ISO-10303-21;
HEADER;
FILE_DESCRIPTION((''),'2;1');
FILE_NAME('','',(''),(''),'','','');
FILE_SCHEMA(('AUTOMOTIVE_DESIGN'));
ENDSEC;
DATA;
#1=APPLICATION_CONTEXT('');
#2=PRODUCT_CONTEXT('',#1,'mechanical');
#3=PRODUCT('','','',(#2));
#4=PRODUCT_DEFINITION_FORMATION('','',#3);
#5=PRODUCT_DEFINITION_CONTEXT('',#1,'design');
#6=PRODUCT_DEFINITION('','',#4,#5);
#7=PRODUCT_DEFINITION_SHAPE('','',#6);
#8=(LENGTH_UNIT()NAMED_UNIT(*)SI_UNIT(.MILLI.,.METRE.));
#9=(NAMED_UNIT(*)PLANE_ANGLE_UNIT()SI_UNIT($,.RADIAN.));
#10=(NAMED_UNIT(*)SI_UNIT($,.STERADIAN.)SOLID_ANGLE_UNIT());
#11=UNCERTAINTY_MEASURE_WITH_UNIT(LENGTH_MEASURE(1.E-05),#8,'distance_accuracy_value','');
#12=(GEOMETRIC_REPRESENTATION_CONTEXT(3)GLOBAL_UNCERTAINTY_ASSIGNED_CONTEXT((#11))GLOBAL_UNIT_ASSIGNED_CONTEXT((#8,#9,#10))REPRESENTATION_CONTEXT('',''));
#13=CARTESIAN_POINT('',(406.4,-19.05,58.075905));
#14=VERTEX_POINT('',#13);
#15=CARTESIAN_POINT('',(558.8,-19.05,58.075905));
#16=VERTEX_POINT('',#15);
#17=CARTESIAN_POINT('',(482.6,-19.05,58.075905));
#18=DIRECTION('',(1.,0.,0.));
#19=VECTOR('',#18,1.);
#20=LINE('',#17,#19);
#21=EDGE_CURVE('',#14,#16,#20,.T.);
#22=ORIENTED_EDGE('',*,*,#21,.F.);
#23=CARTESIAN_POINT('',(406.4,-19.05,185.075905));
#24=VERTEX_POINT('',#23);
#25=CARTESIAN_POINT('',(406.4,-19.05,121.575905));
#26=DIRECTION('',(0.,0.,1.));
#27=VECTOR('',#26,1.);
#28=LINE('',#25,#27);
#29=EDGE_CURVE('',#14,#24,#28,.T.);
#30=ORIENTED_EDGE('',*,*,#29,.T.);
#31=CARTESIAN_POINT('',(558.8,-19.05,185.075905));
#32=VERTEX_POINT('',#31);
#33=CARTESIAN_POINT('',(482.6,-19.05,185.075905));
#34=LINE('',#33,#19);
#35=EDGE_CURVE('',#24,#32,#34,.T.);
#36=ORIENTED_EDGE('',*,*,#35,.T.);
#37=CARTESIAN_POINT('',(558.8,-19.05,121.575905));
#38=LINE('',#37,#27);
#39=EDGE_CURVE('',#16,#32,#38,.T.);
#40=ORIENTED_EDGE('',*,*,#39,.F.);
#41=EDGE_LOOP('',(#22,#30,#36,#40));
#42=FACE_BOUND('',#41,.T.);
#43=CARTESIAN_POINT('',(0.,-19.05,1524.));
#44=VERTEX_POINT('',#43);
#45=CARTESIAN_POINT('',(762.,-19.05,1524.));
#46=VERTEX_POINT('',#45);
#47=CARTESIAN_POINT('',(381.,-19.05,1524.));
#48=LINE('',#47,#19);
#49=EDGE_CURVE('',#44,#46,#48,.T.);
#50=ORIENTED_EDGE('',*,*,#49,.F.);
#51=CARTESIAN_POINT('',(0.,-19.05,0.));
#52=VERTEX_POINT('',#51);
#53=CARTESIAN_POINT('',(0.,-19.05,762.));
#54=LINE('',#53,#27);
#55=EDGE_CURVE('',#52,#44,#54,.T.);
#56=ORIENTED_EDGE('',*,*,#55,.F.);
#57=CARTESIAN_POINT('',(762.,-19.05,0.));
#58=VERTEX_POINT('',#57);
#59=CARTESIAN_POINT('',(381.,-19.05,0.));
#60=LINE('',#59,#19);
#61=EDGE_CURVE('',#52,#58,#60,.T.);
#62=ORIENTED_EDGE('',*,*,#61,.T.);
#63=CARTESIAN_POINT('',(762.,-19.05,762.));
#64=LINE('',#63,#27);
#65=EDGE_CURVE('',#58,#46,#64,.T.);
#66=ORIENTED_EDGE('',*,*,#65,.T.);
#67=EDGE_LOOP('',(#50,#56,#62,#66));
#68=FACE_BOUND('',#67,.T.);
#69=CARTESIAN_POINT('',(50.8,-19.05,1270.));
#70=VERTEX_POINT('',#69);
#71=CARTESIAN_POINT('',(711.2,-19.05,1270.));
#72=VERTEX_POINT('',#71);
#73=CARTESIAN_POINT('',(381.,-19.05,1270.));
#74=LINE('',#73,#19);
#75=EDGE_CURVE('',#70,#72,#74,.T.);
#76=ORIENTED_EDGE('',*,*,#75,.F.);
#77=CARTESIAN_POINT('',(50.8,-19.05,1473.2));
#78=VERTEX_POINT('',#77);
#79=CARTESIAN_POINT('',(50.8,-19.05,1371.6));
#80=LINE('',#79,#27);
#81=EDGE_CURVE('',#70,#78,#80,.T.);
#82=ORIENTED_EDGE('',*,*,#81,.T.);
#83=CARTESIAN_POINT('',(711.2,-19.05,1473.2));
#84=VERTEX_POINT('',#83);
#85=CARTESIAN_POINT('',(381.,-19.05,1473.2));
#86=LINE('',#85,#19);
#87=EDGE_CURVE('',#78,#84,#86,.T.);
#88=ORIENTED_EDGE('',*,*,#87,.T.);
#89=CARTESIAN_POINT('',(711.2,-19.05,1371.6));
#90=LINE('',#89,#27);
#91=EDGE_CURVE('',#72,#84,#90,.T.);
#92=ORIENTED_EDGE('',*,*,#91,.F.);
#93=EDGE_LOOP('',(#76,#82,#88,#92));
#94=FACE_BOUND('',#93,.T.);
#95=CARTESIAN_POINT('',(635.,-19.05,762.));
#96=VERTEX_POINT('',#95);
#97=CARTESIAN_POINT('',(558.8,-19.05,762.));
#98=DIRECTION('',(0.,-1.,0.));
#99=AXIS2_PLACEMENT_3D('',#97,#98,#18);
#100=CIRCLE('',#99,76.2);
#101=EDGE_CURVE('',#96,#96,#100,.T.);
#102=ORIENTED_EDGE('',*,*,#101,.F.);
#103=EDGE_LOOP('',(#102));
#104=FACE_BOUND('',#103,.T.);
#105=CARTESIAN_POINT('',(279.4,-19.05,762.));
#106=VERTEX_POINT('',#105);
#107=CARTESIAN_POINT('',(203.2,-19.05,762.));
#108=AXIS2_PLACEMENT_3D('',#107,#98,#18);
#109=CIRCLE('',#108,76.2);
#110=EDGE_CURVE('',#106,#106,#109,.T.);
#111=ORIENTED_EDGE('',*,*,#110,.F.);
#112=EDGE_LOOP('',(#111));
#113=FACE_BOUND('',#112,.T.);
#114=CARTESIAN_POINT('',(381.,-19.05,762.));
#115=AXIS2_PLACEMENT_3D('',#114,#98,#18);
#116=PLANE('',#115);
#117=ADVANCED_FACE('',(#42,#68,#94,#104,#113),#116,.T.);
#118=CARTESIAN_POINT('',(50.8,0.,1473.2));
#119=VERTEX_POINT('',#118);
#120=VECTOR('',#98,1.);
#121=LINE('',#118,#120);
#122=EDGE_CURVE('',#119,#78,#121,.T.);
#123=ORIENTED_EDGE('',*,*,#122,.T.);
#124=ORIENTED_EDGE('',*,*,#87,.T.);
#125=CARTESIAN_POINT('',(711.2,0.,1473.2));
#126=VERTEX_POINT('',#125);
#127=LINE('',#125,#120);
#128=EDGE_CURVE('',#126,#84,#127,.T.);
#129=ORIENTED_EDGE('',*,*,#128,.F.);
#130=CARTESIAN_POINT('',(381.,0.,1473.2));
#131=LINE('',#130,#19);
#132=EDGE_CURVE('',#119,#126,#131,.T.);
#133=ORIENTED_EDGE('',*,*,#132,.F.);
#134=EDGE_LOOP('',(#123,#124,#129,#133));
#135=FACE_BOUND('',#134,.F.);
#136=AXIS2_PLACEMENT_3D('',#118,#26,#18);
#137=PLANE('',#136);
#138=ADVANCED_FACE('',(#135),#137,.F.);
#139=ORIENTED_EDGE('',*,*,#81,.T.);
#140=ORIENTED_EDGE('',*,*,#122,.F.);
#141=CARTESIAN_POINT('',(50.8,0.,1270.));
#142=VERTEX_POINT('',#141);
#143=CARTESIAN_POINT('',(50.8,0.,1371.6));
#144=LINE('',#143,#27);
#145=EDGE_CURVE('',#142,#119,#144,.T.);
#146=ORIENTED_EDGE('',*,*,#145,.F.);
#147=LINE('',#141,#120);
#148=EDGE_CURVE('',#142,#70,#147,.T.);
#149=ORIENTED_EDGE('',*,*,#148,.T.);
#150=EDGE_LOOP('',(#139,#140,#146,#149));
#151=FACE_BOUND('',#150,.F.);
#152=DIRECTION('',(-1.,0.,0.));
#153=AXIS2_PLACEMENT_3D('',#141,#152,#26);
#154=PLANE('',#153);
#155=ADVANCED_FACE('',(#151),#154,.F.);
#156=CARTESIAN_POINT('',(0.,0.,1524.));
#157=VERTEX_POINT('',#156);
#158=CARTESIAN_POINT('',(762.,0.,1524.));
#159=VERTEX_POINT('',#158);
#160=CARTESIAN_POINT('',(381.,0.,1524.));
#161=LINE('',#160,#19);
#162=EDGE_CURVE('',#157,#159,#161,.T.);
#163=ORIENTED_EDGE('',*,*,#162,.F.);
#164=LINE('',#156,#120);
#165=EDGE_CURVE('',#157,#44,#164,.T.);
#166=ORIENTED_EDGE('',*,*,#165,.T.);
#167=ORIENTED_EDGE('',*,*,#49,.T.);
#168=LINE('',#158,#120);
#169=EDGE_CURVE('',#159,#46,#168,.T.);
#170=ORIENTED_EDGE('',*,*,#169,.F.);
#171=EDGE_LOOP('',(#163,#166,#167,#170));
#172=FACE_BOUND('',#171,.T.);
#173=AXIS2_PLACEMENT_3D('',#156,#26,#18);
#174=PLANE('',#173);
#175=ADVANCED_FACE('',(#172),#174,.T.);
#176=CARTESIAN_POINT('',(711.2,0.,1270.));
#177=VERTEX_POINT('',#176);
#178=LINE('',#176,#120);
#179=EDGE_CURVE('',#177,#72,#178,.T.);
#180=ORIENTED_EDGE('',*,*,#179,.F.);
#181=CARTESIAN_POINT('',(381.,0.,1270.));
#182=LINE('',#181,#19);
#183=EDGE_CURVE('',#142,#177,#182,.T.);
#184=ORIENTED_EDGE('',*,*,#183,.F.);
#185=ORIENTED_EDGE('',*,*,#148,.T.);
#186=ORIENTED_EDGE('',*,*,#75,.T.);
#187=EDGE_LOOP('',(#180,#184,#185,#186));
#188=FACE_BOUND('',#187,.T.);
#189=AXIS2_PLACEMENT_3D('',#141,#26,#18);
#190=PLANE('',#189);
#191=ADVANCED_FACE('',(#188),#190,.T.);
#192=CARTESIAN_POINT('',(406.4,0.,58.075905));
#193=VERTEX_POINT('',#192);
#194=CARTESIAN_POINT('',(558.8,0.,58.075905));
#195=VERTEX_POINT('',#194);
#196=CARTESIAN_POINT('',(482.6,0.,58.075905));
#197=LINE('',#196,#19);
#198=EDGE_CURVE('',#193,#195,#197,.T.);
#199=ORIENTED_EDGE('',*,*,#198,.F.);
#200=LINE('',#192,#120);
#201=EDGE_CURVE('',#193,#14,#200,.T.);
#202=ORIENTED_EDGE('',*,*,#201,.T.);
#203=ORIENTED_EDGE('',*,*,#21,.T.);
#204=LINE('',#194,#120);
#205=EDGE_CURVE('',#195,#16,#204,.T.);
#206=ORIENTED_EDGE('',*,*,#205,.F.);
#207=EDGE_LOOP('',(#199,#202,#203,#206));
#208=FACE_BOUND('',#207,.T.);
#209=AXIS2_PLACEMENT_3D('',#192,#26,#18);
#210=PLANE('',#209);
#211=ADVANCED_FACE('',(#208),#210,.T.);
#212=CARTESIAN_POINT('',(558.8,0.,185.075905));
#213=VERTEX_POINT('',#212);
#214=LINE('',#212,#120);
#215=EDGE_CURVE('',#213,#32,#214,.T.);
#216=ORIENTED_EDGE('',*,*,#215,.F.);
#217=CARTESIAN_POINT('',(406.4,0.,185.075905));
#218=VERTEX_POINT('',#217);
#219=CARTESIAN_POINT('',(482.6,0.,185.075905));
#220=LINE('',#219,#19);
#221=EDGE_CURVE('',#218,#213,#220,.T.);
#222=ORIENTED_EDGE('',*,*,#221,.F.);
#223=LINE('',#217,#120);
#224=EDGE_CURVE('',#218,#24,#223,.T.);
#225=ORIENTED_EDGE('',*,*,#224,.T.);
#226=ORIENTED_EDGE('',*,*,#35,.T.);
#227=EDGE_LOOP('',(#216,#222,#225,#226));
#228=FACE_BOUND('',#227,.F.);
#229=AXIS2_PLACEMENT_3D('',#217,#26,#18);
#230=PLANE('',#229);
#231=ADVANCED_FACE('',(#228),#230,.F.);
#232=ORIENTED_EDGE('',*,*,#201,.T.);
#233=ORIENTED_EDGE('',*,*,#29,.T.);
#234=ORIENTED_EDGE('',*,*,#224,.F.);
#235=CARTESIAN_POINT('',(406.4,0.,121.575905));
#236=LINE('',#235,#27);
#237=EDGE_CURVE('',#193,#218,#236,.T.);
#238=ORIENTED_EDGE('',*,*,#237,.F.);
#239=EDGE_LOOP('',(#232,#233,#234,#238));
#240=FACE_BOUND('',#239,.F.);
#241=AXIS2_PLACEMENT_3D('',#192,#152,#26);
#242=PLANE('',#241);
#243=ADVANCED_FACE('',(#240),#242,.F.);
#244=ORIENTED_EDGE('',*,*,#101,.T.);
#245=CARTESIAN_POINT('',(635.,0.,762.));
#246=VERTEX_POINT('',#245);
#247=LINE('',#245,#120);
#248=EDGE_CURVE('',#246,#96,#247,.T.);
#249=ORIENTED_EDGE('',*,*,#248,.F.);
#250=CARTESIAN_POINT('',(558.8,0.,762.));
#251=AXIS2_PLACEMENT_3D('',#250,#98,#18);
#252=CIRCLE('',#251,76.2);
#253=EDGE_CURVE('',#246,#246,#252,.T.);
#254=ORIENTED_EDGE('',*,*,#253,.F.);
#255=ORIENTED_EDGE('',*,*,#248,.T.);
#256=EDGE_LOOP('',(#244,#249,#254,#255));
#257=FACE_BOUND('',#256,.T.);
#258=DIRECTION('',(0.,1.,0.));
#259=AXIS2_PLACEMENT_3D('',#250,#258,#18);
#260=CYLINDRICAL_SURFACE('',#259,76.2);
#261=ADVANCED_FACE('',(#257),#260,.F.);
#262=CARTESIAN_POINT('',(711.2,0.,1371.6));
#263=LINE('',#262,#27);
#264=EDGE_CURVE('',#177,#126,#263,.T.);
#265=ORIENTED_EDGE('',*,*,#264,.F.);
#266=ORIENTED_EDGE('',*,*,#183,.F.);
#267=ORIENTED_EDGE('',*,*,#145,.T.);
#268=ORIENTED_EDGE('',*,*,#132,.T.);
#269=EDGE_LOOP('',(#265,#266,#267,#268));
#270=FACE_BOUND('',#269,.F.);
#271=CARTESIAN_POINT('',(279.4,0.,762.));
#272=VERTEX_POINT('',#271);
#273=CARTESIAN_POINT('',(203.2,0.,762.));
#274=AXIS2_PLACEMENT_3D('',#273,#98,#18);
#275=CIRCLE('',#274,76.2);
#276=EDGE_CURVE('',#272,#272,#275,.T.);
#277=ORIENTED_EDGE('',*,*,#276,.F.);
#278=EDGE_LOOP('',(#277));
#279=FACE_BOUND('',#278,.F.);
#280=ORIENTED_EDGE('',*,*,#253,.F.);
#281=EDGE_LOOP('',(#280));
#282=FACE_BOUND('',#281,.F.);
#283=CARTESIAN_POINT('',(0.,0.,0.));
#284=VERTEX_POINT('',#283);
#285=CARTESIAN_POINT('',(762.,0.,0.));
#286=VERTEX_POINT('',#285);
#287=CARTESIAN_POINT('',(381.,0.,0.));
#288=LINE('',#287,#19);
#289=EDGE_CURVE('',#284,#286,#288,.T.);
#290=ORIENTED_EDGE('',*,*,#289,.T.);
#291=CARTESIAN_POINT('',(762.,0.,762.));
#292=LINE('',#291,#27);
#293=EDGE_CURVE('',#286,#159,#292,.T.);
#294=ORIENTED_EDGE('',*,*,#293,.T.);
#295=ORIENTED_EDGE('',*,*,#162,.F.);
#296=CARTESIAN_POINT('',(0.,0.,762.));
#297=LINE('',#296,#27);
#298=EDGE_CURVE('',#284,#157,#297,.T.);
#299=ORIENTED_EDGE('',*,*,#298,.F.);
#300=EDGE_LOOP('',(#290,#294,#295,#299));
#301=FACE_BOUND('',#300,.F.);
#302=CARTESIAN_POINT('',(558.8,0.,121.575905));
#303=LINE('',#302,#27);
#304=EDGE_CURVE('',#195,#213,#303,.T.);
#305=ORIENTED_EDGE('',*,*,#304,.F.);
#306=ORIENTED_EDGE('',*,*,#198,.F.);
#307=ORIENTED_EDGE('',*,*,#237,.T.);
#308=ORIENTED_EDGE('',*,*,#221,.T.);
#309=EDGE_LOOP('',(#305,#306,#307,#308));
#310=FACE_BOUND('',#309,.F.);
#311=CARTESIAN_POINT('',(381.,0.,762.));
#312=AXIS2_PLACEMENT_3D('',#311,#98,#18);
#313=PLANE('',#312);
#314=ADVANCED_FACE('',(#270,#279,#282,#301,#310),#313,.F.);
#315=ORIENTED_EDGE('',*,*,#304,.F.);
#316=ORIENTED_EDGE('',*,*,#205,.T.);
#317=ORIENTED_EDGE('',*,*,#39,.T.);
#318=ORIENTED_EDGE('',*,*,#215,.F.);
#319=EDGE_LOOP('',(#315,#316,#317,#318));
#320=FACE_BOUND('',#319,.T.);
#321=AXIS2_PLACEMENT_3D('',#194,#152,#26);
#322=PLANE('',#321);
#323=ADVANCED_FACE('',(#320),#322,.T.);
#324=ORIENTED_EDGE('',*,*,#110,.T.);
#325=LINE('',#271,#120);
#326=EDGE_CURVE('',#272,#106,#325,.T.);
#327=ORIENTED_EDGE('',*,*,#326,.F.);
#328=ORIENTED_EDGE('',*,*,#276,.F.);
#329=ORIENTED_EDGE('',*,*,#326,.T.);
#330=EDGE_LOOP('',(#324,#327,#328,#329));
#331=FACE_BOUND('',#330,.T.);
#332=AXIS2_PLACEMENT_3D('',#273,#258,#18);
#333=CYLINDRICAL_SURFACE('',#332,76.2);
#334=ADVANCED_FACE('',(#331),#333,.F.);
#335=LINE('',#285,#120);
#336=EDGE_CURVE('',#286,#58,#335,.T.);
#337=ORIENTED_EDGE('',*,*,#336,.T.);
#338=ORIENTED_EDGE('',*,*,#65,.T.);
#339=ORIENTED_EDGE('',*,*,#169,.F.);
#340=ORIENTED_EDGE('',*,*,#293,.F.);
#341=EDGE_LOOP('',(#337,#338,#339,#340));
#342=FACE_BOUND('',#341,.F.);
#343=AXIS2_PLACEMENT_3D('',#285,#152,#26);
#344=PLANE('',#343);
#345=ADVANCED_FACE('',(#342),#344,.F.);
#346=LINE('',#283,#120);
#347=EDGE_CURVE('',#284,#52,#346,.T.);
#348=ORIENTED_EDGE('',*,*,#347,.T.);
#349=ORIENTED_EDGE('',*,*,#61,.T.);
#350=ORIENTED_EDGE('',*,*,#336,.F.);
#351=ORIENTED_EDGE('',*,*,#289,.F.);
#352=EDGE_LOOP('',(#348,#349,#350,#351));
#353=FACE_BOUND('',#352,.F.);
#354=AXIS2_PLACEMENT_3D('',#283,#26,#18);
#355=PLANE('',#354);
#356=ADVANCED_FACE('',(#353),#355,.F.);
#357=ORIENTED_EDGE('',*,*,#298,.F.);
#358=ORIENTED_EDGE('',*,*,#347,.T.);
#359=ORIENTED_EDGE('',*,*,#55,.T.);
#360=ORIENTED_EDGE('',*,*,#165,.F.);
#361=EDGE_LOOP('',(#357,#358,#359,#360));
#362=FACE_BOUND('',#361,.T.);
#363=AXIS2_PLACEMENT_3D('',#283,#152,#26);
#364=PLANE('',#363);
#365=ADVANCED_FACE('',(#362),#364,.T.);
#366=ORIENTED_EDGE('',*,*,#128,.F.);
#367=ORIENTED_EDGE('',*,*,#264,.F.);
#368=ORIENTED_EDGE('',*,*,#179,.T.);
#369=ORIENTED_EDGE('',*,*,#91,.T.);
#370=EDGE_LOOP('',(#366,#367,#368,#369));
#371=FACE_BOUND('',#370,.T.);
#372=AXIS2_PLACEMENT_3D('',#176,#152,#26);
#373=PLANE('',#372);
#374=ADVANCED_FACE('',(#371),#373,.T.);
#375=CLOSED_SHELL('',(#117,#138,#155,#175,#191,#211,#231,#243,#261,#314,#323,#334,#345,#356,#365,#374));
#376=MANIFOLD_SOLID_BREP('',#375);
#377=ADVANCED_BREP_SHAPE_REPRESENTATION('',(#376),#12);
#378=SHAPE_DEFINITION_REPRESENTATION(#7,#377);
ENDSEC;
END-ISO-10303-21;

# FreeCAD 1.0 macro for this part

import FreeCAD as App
import Part
import Sketcher

V = App.Vector
Q = App.Units.Quantity


def add_polygon(sketch, points):
    """Adds a closed chain of lines whose ends are joined by coincident constraints."""
    first, n = sketch.GeometryCount, len(points)
    for a, b in zip(points, points[1:] + points[:1]):
        sketch.addGeometry(Part.LineSegment(App.Vector(*a, 0), App.Vector(*b, 0)), False)
    for i in range(n):
        sketch.addConstraint(Sketcher.Constraint("Coincident", first + i, 2, first + (i + 1) % n, 1))

doc = App.newDocument("Part")
body = doc.addObject("PartDesign::Body", "Body")

# Sketch on XZ plane
sketch1 = body.newObject("Sketcher::SketchObject", "Sketch")
sketch1.AttachmentSupport = (doc.getObject("XZ_Plane"), [""])
sketch1.MapMode = "FlatFace"
add_polygon(sketch1, [(0, 1524), (0, 0), (762, 0), (762, 1524)])  # lines 0-3
sketch1.addGeometry(Part.Circle(V(203, 762, 0), V(0, 0, 1), 76), False)  # 4
add_polygon(sketch1, [(559, 58), (406, 58), (406, 185), (559, 185)])  # lines 5-8
sketch1.addGeometry(Part.Circle(V(559, 762, 0), V(0, 0, 1), 76), False)  # 9
add_polygon(sketch1, [(711, 1270), (51, 1270), (51, 1473), (711, 1473)])  # lines 10-13
sketch1.addConstraint([
    Sketcher.Constraint("Vertical", 0),
    Sketcher.Constraint("Horizontal", 1),
    Sketcher.Constraint("Vertical", 2),
    Sketcher.Constraint("Horizontal", 3),
    Sketcher.Constraint("Horizontal", 5),
    Sketcher.Constraint("Vertical", 6),
    Sketcher.Constraint("Horizontal", 7),
    Sketcher.Constraint("Vertical", 8),
    Sketcher.Constraint("Horizontal", 10),
    Sketcher.Constraint("Vertical", 11),
    Sketcher.Constraint("Horizontal", 12),
    Sketcher.Constraint("Vertical", 13),
    Sketcher.Constraint("Coincident", 0, 2, -1, 1),
    Sketcher.Constraint("Equal", 4, 9),
    Sketcher.Constraint("Horizontal", 4, 3, 9, 3),
    Sketcher.Constraint("Vertical", 9, 3, 7, 2),
    Sketcher.Constraint("Diameter", 4, Q("6 in")),
    Sketcher.Constraint("DistanceX", 1, 1, 1, 2, Q("30 in")),
    Sketcher.Constraint("DistanceX", 5, 2, 5, 1, Q("6 in")),
    Sketcher.Constraint("DistanceX", 10, 2, 10, 1, Q("26 in")),
    Sketcher.Constraint("DistanceY", 0, 2, 0, 1, Q("60 in")),
    Sketcher.Constraint("DistanceY", 6, 1, 6, 2, Q("5 in")),
    Sketcher.Constraint("DistanceY", 11, 1, 11, 2, Q("8 in")),
    Sketcher.Constraint("DistanceX", -1, 1, 4, 3, Q("8 in")),
    Sketcher.Constraint("DistanceY", -1, 1, 4, 3, Q("30 in")),
    Sketcher.Constraint("DistanceX", -1, 1, 9, 3, Q("22 in")),
    Sketcher.Constraint("DistanceX", -1, 1, 10, 2, Q("2 in")),
    Sketcher.Constraint("DistanceY", -1, 1, 10, 2, Q("50 in")),
    Sketcher.Constraint("DistanceY", -1, 1, 5, 2, Q("58.075905 mm")),
])
pad1 = body.newObject("PartDesign::Pad", "Pad")
pad1.Profile = sketch1
pad1.Length = Q("0.75 in")

doc.recompute()
